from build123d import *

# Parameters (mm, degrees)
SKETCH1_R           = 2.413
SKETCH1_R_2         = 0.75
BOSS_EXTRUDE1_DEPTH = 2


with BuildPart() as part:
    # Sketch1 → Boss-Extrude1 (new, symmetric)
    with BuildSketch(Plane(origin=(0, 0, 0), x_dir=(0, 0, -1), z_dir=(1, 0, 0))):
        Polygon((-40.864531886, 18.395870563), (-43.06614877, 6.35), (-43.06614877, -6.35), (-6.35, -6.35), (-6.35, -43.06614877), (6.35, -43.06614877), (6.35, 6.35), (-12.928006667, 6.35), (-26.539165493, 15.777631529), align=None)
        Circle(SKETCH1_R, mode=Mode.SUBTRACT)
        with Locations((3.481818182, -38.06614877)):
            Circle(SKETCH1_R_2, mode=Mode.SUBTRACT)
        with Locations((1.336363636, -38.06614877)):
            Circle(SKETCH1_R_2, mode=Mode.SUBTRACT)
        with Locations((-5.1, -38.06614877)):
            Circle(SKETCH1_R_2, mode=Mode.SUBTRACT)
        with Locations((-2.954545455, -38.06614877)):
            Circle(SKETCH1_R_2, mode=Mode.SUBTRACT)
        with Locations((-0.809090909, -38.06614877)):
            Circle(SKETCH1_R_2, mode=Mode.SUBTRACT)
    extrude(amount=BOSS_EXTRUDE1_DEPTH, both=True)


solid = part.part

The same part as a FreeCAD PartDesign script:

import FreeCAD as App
import Part
import Sketcher
from FreeCAD import Vector

doc = App.newDocument("Part")
body = doc.addObject("PartDesign::Body", "Body")

# Sketch on YZ plane
sketch1 = doc.addObject("Sketcher::SketchObject", "Sketch")
body.addObject(sketch1)
sketch1.AttachmentSupport = (doc.YZ_Plane, [""])
sketch1.MapMode = "FlatFace"
sketch1.addGeometry(Part.LineSegment(Vector(18.4, 40.9, 0), Vector(6.3, 43.1, 0)), False)
sketch1.addGeometry(Part.LineSegment(Vector(6.3, 43.1, 0), Vector(-6.3, 43.1, 0)), False)
sketch1.addGeometry(Part.LineSegment(Vector(-6.3, 43.1, 0), Vector(-6.3, 6.3, 0)), False)
sketch1.addGeometry(Part.LineSegment(Vector(-6.3, 6.3, 0), Vector(-43.1, 6.3, 0)), False)
sketch1.addGeometry(Part.LineSegment(Vector(-43.1, 6.3, 0), Vector(-43.1, -6.3, 0)), False)
sketch1.addGeometry(Part.LineSegment(Vector(-43.1, -6.3, 0), Vector(6.3, -6.3, 0)), False)
sketch1.addGeometry(Part.LineSegment(Vector(6.3, -6.3, 0), Vector(6.3, 12.9, 0)), False)
sketch1.addGeometry(Part.LineSegment(Vector(6.3, 12.9, 0), Vector(15.8, 26.5, 0)), False)
sketch1.addGeometry(Part.LineSegment(Vector(15.8, 26.5, 0), Vector(18.4, 40.9, 0)), False)
sketch1.addGeometry(Part.Circle(Vector(-38.1, 5.1, 0), Vector(0, 0, 1), 0.8), False)
sketch1.addGeometry(Part.Circle(Vector(-38.1, 3, 0), Vector(0, 0, 1), 0.8), False)
sketch1.addGeometry(Part.Circle(Vector(-38.1, 0.8, 0), Vector(0, 0, 1), 0.8), False)
sketch1.addGeometry(Part.Circle(Vector(-38.1, -1.3, 0), Vector(0, 0, 1), 0.8), False)
sketch1.addGeometry(Part.Circle(Vector(-38.1, -3.5, 0), Vector(0, 0, 1), 0.8), False)
sketch1.addGeometry(Part.Circle(Vector(0, 0, 0), Vector(0, 0, 1), 2.4), False)
sketch1.addConstraint(Sketcher.Constraint("Coincident", 0, 2, 1, 1))
sketch1.addConstraint(Sketcher.Constraint("Coincident", 1, 2, 2, 1))
sketch1.addConstraint(Sketcher.Constraint("Coincident", 2, 2, 3, 1))
sketch1.addConstraint(Sketcher.Constraint("Coincident", 3, 2, 4, 1))
sketch1.addConstraint(Sketcher.Constraint("Coincident", 4, 2, 5, 1))
sketch1.addConstraint(Sketcher.Constraint("Coincident", 5, 2, 6, 1))
sketch1.addConstraint(Sketcher.Constraint("Coincident", 6, 2, 7, 1))
sketch1.addConstraint(Sketcher.Constraint("Coincident", 7, 2, 8, 1))
sketch1.addConstraint(Sketcher.Constraint("Coincident", 8, 2, 0, 1))
sketch1.addConstraint(Sketcher.Constraint("Horizontal", 1))
sketch1.addConstraint(Sketcher.Constraint("Vertical", 2))
sketch1.addConstraint(Sketcher.Constraint("Horizontal", 3))
sketch1.addConstraint(Sketcher.Constraint("Vertical", 4))
sketch1.addConstraint(Sketcher.Constraint("Horizontal", 5))
sketch1.addConstraint(Sketcher.Constraint("Vertical", 6))
sketch1.addConstraint(Sketcher.Constraint("Coincident", 14, 3, -1, 1))
sketch1.addConstraint(Sketcher.Constraint("Equal", 9, 10))
sketch1.addConstraint(Sketcher.Constraint("Equal", 10, 11))
sketch1.addConstraint(Sketcher.Constraint("Equal", 11, 12))
sketch1.addConstraint(Sketcher.Constraint("Equal", 12, 13))
sketch1.addConstraint(Sketcher.Constraint("Symmetric", 2, 2, 5, 2, -1, 1))
sketch1.addConstraint(Sketcher.Constraint("Perpendicular", 0, 8))
sketch1.addConstraint(Sketcher.Constraint("Vertical", 9, 3, 10, 3))
sketch1.addConstraint(Sketcher.Constraint("Vertical", 10, 3, 11, 3))
sketch1.addConstraint(Sketcher.Constraint("Vertical", 11, 3, 12, 3))
sketch1.addConstraint(Sketcher.Constraint("Vertical", 12, 3, 13, 3))
sketch1.addConstraint(Sketcher.Constraint("Vertical", 0, 2, 5, 2))
sketch1.addConstraint(Sketcher.Constraint("Equal", 3, 2))
sketch1.addConstraint(Sketcher.Constraint("Equal", 1, 4))
sketch1.addConstraint(Sketcher.Constraint("Diameter", 9, 1.5))
sketch1.addConstraint(Sketcher.Constraint("Diameter", 14, 4.826))
sketch1.addConstraint(Sketcher.Constraint("DistanceX", 1, 2, 1, 1, 12.7))
sketch1.addConstraint(Sketcher.Constraint("DistanceX", 3, 2, 9, 3, 5.0))
sketch1.addConstraint(Sketcher.Constraint("DistanceY", -1, 1, 9, 3, 5.1))
sketch1.addConstraint(Sketcher.Constraint("DistanceX", 3, 2, 3, 1, 36.716149))
sketch1.addConstraint(Sketcher.Constraint("Distance", 0, 12.245412))
sketch1.addConstraint(Sketcher.Constraint("Distance", 7, 16.557291))
sketch1.addConstraint(Sketcher.Constraint("DistanceY", 6, 1, 6, 2, 19.278007))
sketch1.addConstraint(Sketcher.Constraint("DistanceY", -1, 1, 11, 3, 0.809091))
sketch1.addConstraint(Sketcher.Constraint("DistanceY", 13, 3, -1, 1, 3.481818))
sketch1.addConstraint(Sketcher.Constraint("DistanceX", -1, 1, 7, 2, 15.777632))
sketch1.addConstraint(Sketcher.Constraint("DistanceY", 12, 3, 10, 3, 4.290909))
sketch1.addConstraint(Sketcher.Constraint("DistanceY", -1, 1, 10, 3, 2.954545))
pad1 = doc.addObject("PartDesign::Pad", "Pad")
body.addObject(pad1)
pad1.Profile = sketch1
pad1.Length = 4
pad1.Midplane = True

doc.recompute()
